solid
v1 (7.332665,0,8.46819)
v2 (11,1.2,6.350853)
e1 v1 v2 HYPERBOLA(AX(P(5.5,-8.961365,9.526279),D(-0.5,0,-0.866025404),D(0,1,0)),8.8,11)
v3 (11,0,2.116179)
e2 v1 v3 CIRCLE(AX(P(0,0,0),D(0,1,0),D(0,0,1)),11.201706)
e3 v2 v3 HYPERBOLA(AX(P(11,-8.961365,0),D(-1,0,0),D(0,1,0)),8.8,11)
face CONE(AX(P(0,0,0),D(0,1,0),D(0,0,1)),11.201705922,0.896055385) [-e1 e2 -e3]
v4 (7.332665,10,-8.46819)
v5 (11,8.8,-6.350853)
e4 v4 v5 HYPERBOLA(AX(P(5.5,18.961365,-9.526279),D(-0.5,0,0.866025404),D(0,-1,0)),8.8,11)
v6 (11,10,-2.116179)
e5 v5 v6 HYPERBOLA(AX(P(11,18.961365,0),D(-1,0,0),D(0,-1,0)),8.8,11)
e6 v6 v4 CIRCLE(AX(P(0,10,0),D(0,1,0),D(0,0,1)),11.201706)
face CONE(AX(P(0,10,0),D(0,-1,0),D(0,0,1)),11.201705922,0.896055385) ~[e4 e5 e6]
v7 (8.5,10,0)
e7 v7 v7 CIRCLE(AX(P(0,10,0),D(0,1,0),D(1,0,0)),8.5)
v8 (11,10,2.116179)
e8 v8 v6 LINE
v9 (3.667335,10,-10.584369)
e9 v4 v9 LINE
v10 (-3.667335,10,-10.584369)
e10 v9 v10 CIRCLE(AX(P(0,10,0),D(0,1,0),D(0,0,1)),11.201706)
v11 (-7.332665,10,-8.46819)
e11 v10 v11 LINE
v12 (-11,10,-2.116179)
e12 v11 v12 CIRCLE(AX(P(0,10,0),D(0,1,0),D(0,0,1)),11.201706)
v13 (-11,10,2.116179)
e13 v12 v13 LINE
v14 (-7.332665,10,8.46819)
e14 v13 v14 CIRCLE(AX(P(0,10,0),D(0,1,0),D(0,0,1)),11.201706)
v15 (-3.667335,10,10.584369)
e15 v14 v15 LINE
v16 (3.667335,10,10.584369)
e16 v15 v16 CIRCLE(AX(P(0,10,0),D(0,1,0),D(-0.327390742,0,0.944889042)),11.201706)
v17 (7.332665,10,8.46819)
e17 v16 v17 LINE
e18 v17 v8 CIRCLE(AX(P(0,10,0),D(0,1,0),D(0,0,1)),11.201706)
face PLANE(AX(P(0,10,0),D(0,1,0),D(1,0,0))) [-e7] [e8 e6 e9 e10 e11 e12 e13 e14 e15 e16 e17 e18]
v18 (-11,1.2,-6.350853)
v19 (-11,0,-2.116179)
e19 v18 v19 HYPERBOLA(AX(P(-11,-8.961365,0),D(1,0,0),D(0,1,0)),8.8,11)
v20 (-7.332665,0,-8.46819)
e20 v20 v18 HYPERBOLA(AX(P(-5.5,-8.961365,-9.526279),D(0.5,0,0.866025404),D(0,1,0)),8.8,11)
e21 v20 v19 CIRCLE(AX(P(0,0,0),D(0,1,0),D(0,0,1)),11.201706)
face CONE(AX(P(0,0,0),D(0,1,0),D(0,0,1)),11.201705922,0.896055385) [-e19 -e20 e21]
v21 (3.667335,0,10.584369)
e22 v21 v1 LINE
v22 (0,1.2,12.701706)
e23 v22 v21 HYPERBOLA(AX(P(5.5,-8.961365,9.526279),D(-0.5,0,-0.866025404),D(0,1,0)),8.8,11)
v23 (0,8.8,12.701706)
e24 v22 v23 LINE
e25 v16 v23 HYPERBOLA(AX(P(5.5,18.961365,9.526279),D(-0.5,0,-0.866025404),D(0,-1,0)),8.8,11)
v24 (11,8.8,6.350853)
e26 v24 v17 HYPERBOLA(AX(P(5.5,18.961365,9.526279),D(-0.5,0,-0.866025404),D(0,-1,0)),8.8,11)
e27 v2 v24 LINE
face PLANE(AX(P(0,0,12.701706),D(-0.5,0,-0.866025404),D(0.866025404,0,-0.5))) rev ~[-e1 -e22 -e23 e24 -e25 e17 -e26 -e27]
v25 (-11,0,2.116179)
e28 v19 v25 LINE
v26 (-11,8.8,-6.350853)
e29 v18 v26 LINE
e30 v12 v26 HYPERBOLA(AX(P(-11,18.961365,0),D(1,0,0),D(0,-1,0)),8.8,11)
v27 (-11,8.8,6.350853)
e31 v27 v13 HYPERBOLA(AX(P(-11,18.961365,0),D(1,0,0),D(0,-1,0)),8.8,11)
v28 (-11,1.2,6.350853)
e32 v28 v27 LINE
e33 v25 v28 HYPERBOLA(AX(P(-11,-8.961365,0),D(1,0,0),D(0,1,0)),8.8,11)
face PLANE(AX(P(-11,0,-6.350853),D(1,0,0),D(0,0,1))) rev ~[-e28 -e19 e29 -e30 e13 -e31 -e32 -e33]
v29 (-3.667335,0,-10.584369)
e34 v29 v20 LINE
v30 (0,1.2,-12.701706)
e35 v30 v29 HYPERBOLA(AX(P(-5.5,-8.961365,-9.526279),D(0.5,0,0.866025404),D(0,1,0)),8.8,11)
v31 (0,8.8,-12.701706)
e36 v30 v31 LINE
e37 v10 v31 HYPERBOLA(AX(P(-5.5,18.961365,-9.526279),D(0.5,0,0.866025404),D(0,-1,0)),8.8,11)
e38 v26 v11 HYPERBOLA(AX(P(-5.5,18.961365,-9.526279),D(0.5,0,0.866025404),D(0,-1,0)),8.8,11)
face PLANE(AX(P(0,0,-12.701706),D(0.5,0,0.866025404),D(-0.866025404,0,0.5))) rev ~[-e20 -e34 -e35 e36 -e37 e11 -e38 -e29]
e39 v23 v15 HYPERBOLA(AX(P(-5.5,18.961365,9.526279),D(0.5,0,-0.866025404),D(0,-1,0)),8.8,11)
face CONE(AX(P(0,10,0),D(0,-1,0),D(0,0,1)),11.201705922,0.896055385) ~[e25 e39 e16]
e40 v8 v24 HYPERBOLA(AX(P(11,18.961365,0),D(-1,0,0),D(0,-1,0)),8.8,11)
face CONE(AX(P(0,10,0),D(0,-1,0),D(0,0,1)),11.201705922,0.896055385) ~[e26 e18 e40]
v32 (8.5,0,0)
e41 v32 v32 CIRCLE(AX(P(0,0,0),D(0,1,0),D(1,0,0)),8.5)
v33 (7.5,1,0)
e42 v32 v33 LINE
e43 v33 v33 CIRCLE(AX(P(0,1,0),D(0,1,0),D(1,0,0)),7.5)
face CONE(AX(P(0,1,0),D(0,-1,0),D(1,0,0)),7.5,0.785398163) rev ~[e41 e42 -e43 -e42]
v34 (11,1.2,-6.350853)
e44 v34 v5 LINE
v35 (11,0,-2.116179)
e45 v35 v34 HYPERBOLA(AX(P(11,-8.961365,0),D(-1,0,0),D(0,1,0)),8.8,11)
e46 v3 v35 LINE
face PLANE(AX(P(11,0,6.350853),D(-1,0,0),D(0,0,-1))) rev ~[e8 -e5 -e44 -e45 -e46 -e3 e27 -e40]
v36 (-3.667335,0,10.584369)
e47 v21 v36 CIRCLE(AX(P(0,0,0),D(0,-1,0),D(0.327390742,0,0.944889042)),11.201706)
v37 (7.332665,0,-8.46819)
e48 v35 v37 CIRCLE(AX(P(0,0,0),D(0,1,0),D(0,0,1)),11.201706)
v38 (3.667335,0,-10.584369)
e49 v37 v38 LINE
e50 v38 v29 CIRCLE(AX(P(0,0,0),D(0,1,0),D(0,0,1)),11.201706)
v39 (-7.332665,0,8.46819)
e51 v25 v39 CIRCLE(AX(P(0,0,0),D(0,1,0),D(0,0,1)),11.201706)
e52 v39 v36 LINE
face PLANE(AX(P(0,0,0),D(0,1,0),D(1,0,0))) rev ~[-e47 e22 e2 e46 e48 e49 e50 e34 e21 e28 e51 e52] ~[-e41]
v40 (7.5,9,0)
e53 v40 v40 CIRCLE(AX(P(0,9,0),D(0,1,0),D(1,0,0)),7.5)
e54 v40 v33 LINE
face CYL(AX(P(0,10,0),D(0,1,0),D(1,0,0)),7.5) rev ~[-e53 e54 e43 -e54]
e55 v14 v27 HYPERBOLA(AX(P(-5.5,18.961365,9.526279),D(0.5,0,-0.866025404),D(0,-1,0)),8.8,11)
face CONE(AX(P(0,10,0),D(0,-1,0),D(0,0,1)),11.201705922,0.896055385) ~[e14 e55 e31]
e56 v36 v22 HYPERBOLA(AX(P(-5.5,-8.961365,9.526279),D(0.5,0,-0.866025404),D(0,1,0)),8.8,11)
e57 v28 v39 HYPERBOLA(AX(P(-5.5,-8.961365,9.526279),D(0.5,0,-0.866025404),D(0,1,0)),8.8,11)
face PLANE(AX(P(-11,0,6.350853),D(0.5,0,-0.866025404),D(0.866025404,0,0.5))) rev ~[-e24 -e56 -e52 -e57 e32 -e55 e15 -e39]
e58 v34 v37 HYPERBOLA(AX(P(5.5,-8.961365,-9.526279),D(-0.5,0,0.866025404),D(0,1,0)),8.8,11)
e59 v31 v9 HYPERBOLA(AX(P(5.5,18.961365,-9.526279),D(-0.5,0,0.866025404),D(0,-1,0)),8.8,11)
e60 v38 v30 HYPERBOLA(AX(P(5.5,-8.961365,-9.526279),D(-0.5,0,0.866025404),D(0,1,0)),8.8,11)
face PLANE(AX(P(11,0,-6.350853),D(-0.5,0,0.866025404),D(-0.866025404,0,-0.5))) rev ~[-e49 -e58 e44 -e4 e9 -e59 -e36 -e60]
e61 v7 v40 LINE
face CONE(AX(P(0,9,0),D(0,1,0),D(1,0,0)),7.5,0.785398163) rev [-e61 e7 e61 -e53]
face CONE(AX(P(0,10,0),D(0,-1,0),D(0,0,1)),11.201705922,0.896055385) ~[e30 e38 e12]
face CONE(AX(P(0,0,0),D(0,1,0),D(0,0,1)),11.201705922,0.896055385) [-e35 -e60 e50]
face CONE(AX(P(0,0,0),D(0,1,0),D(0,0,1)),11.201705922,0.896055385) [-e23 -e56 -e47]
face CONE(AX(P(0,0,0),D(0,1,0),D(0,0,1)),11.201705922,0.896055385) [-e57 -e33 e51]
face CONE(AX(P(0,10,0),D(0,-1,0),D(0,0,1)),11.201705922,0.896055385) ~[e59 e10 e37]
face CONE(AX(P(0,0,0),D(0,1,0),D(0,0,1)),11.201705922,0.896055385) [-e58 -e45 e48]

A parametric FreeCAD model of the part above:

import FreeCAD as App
import Part
import Sketcher
from FreeCAD import Vector
Q = App.Units.Quantity


def edges_at(feature, points):
    """Names of the edges that pass closest to the given points."""
    edges = feature.Shape.Edges
    near = lambda p: min(range(len(edges)), key=lambda i: edges[i].distToShape(Part.Vertex(*p))[0])
    return sorted({f"Edge{near(p) + 1}" for p in points})


def add_polygon(sketch, points):
    """Adds a closed chain of lines whose ends are joined by coincident constraints."""
    first, n = sketch.GeometryCount, len(points)
    for a, b in zip(points, points[1:] + points[:1]):
        sketch.addGeometry(Part.LineSegment(App.Vector(*a, 0), App.Vector(*b, 0)), False)
    for i in range(n):
        sketch.addConstraint(Sketcher.Constraint("Coincident", first + i, 2, first + (i + 1) % n, 1))

doc = App.newDocument("Part")
body = doc.addObject("PartDesign::Body", "Body")

# Sketch on XZ plane
sketch1 = body.newObject("Sketcher::SketchObject", "Sketch")
sketch1.AttachmentSupport = (doc.getObject("XZ_Plane"), [""])
sketch1.MapMode = "FlatFace"
add_polygon(sketch1, [(0, -12.701706), (-11, -6.350853), (-11, 6.350853), (0, 12.701706), (11, 6.350853), (11, -6.350853)])  # lines 0-5
sketch1.addConstraint([
    Sketcher.Constraint("Vertical", 1),
    Sketcher.Constraint("Vertical", 4),
    Sketcher.Constraint("Symmetric", 0, 2, 3, 2, -1, 1),
    Sketcher.Constraint("Symmetric", 2, 2, 5, 2, -1, 1),
    Sketcher.Constraint("PointOnObject", 2, 2, -2),
    Sketcher.Constraint("Parallel", 2, 5),
    Sketcher.Constraint("Horizontal", 1, 2, 3, 2),
    Sketcher.Constraint("Angle", 0, Q("150 deg")),
    Sketcher.Constraint("DistanceX", 0, 2, -1, 1, Q("11 mm")),
    Sketcher.Constraint("DistanceY", 1, 1, 1, 2, Q("12.701706 mm")),
])
pad1 = body.newObject("PartDesign::Pad", "Pad")
pad1.Profile = sketch1
pad1.Length = 10
pad1.Reversed = True

# Sketch on XZ plane
sketch2 = body.newObject("Sketcher::SketchObject", "Sketch001")
sketch2.AttachmentSupport = (doc.getObject("XZ_Plane"), [""])
sketch2.MapMode = "FlatFace"
sketch2.AttachmentOffset = App.Placement(Vector(0, 0, -10), App.Rotation())
sketch2.addGeometry(Part.Circle(Vector(0, 0, 0), Vector(0, 0, 1), 7.5), False)
sketch2.addConstraint([
    Sketcher.Constraint("Coincident", 0, 3, -1, 1),
    Sketcher.Constraint("Diameter", 0, Q("15 mm")),
])
pocket1 = body.newObject("PartDesign::Pocket", "Pocket")
pocket1.Profile = sketch2
pocket1.Type = "ThroughAll"
pocket1.Reversed = True
doc.recompute()

chamfer = body.newObject("PartDesign::Chamfer", "Chamfer")
chamfer.Base = (pocket1, edges_at(pocket1, [(-7.5, 0, 0), (-7.5, 10, 0)]))
chamfer.Size = 1

# Sketch on YZ plane
sketch3 = body.newObject("Sketcher::SketchObject", "Sketch002")
sketch3.AttachmentSupport = (doc.getObject("YZ_Plane"), [""])
sketch3.MapMode = "FlatFace"
add_polygon(sketch3, [(10, 11.201706), (10, 12.701706), (8.8, 12.701706)])  # lines 0-2
add_polygon(sketch3, [(1.2, 12.701706), (0, 12.701706), (0, 11.201706)])  # lines 3-5
sketch3.addConstraint([
    Sketcher.Constraint("Vertical", 0),
    Sketcher.Constraint("Horizontal", 1),
    Sketcher.Constraint("Horizontal", 3),
    Sketcher.Constraint("Vertical", 4),
    Sketcher.Constraint("PointOnObject", 3, 2, -2),
    Sketcher.Constraint("Horizontal", 1, 2, 3, 2),
    Sketcher.Constraint("Horizontal", 2, 2, 4, 2),
    Sketcher.Constraint("Equal", 1, 3),
    Sketcher.Constraint("DistanceX", 1, 2, 1, 1, Q("1.2 mm")),
    Sketcher.Constraint("DistanceY", 0, 1, 0, 2, Q("1.5 mm")),
    Sketcher.Constraint("DistanceX", -1, 1, 0, 2, Q("10 mm")),
    Sketcher.Constraint("DistanceY", -1, 1, 0, 2, Q("12.701706 mm")),
])
groove = body.newObject("PartDesign::Groove", "Groove")
groove.Profile = sketch3
groove.ReferenceAxis = (sketch3, ["H_Axis"])
groove.Angle = 360

doc.recompute()
